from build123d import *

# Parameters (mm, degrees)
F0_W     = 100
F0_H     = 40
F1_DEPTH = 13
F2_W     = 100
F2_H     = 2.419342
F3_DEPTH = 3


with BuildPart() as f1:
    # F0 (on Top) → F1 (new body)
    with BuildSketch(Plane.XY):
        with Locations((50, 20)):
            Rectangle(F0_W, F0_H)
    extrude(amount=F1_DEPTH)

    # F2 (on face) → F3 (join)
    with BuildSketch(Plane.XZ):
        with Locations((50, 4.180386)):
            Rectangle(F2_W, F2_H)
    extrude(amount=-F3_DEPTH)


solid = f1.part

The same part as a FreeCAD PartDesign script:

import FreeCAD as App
import Part
import Sketcher

doc = App.newDocument("Part")
body = doc.addObject("PartDesign::Body", "Body")

# Sketch on XY plane
sketch1 = body.newObject("Sketcher::SketchObject", "Sketch")
sketch1.AttachmentSupport = (doc.getObject("XY_Plane"), [""])
sketch1.MapMode = "FlatFace"
sketch1.addGeometry(Part.LineSegment(App.Vector(0, 40, 0), App.Vector(0, 0, 0)), False)
sketch1.addGeometry(Part.LineSegment(App.Vector(0, 0, 0), App.Vector(100, 0, 0)), False)
sketch1.addGeometry(Part.LineSegment(App.Vector(100, 0, 0), App.Vector(100, 40, 0)), False)
sketch1.addGeometry(Part.LineSegment(App.Vector(100, 40, 0), App.Vector(0, 40, 0)), False)
sketch1.addConstraint(Sketcher.Constraint("Coincident", 0, 2, 1, 1))
sketch1.addConstraint(Sketcher.Constraint("Coincident", 1, 2, 2, 1))
sketch1.addConstraint(Sketcher.Constraint("Coincident", 2, 2, 3, 1))
sketch1.addConstraint(Sketcher.Constraint("Coincident", 3, 2, 0, 1))
sketch1.addConstraint(Sketcher.Constraint("Vertical", 0))
sketch1.addConstraint(Sketcher.Constraint("Horizontal", 1))
sketch1.addConstraint(Sketcher.Constraint("Vertical", 2))
sketch1.addConstraint(Sketcher.Constraint("Horizontal", 3))
sketch1.addConstraint(Sketcher.Constraint("Coincident", 0, 2, -1, 1))
sketch1.addConstraint(Sketcher.Constraint("DistanceX", 1, 1, 1, 2, 100.0))
sketch1.addConstraint(Sketcher.Constraint("DistanceY", 0, 2, 0, 1, 40.0))
pad1 = body.newObject("PartDesign::Pad", "Pad")
pad1.Profile = sketch1
pad1.Length = 13

# Sketch on XZ plane
sketch2 = body.newObject("Sketcher::SketchObject", "Sketch001")
sketch2.AttachmentSupport = (doc.getObject("XZ_Plane"), [""])
sketch2.MapMode = "FlatFace"
sketch2.addGeometry(Part.LineSegment(App.Vector(0, 5.4, 0), App.Vector(0, 3, 0)), False)
sketch2.addGeometry(Part.LineSegment(App.Vector(0, 3, 0), App.Vector(100, 3, 0)), False)
sketch2.addGeometry(Part.LineSegment(App.Vector(100, 3, 0), App.Vector(100, 5.4, 0)), False)
sketch2.addGeometry(Part.LineSegment(App.Vector(100, 5.4, 0), App.Vector(0, 5.4, 0)), False)
sketch2.addConstraint(Sketcher.Constraint("Coincident", 0, 2, 1, 1))
sketch2.addConstraint(Sketcher.Constraint("Coincident", 1, 2, 2, 1))
sketch2.addConstraint(Sketcher.Constraint("Coincident", 2, 2, 3, 1))
sketch2.addConstraint(Sketcher.Constraint("Coincident", 3, 2, 0, 1))
sketch2.addConstraint(Sketcher.Constraint("Vertical", 0))
sketch2.addConstraint(Sketcher.Constraint("Horizontal", 1))
sketch2.addConstraint(Sketcher.Constraint("Vertical", 2))
sketch2.addConstraint(Sketcher.Constraint("Horizontal", 3))
sketch2.addConstraint(Sketcher.Constraint("PointOnObject", 0, 2, -2))
sketch2.addConstraint(Sketcher.Constraint("DistanceX", 1, 1, 1, 2, 100.0))
sketch2.addConstraint(Sketcher.Constraint("DistanceY", 0, 2, 0, 1, 2.419342))
sketch2.addConstraint(Sketcher.Constraint("DistanceY", -1, 1, 0, 2, 2.970715))
pad2 = body.newObject("PartDesign::Pad", "Pad001")
pad2.Profile = sketch2
pad2.Length = 3
pad2.Reversed = True

doc.recompute()
